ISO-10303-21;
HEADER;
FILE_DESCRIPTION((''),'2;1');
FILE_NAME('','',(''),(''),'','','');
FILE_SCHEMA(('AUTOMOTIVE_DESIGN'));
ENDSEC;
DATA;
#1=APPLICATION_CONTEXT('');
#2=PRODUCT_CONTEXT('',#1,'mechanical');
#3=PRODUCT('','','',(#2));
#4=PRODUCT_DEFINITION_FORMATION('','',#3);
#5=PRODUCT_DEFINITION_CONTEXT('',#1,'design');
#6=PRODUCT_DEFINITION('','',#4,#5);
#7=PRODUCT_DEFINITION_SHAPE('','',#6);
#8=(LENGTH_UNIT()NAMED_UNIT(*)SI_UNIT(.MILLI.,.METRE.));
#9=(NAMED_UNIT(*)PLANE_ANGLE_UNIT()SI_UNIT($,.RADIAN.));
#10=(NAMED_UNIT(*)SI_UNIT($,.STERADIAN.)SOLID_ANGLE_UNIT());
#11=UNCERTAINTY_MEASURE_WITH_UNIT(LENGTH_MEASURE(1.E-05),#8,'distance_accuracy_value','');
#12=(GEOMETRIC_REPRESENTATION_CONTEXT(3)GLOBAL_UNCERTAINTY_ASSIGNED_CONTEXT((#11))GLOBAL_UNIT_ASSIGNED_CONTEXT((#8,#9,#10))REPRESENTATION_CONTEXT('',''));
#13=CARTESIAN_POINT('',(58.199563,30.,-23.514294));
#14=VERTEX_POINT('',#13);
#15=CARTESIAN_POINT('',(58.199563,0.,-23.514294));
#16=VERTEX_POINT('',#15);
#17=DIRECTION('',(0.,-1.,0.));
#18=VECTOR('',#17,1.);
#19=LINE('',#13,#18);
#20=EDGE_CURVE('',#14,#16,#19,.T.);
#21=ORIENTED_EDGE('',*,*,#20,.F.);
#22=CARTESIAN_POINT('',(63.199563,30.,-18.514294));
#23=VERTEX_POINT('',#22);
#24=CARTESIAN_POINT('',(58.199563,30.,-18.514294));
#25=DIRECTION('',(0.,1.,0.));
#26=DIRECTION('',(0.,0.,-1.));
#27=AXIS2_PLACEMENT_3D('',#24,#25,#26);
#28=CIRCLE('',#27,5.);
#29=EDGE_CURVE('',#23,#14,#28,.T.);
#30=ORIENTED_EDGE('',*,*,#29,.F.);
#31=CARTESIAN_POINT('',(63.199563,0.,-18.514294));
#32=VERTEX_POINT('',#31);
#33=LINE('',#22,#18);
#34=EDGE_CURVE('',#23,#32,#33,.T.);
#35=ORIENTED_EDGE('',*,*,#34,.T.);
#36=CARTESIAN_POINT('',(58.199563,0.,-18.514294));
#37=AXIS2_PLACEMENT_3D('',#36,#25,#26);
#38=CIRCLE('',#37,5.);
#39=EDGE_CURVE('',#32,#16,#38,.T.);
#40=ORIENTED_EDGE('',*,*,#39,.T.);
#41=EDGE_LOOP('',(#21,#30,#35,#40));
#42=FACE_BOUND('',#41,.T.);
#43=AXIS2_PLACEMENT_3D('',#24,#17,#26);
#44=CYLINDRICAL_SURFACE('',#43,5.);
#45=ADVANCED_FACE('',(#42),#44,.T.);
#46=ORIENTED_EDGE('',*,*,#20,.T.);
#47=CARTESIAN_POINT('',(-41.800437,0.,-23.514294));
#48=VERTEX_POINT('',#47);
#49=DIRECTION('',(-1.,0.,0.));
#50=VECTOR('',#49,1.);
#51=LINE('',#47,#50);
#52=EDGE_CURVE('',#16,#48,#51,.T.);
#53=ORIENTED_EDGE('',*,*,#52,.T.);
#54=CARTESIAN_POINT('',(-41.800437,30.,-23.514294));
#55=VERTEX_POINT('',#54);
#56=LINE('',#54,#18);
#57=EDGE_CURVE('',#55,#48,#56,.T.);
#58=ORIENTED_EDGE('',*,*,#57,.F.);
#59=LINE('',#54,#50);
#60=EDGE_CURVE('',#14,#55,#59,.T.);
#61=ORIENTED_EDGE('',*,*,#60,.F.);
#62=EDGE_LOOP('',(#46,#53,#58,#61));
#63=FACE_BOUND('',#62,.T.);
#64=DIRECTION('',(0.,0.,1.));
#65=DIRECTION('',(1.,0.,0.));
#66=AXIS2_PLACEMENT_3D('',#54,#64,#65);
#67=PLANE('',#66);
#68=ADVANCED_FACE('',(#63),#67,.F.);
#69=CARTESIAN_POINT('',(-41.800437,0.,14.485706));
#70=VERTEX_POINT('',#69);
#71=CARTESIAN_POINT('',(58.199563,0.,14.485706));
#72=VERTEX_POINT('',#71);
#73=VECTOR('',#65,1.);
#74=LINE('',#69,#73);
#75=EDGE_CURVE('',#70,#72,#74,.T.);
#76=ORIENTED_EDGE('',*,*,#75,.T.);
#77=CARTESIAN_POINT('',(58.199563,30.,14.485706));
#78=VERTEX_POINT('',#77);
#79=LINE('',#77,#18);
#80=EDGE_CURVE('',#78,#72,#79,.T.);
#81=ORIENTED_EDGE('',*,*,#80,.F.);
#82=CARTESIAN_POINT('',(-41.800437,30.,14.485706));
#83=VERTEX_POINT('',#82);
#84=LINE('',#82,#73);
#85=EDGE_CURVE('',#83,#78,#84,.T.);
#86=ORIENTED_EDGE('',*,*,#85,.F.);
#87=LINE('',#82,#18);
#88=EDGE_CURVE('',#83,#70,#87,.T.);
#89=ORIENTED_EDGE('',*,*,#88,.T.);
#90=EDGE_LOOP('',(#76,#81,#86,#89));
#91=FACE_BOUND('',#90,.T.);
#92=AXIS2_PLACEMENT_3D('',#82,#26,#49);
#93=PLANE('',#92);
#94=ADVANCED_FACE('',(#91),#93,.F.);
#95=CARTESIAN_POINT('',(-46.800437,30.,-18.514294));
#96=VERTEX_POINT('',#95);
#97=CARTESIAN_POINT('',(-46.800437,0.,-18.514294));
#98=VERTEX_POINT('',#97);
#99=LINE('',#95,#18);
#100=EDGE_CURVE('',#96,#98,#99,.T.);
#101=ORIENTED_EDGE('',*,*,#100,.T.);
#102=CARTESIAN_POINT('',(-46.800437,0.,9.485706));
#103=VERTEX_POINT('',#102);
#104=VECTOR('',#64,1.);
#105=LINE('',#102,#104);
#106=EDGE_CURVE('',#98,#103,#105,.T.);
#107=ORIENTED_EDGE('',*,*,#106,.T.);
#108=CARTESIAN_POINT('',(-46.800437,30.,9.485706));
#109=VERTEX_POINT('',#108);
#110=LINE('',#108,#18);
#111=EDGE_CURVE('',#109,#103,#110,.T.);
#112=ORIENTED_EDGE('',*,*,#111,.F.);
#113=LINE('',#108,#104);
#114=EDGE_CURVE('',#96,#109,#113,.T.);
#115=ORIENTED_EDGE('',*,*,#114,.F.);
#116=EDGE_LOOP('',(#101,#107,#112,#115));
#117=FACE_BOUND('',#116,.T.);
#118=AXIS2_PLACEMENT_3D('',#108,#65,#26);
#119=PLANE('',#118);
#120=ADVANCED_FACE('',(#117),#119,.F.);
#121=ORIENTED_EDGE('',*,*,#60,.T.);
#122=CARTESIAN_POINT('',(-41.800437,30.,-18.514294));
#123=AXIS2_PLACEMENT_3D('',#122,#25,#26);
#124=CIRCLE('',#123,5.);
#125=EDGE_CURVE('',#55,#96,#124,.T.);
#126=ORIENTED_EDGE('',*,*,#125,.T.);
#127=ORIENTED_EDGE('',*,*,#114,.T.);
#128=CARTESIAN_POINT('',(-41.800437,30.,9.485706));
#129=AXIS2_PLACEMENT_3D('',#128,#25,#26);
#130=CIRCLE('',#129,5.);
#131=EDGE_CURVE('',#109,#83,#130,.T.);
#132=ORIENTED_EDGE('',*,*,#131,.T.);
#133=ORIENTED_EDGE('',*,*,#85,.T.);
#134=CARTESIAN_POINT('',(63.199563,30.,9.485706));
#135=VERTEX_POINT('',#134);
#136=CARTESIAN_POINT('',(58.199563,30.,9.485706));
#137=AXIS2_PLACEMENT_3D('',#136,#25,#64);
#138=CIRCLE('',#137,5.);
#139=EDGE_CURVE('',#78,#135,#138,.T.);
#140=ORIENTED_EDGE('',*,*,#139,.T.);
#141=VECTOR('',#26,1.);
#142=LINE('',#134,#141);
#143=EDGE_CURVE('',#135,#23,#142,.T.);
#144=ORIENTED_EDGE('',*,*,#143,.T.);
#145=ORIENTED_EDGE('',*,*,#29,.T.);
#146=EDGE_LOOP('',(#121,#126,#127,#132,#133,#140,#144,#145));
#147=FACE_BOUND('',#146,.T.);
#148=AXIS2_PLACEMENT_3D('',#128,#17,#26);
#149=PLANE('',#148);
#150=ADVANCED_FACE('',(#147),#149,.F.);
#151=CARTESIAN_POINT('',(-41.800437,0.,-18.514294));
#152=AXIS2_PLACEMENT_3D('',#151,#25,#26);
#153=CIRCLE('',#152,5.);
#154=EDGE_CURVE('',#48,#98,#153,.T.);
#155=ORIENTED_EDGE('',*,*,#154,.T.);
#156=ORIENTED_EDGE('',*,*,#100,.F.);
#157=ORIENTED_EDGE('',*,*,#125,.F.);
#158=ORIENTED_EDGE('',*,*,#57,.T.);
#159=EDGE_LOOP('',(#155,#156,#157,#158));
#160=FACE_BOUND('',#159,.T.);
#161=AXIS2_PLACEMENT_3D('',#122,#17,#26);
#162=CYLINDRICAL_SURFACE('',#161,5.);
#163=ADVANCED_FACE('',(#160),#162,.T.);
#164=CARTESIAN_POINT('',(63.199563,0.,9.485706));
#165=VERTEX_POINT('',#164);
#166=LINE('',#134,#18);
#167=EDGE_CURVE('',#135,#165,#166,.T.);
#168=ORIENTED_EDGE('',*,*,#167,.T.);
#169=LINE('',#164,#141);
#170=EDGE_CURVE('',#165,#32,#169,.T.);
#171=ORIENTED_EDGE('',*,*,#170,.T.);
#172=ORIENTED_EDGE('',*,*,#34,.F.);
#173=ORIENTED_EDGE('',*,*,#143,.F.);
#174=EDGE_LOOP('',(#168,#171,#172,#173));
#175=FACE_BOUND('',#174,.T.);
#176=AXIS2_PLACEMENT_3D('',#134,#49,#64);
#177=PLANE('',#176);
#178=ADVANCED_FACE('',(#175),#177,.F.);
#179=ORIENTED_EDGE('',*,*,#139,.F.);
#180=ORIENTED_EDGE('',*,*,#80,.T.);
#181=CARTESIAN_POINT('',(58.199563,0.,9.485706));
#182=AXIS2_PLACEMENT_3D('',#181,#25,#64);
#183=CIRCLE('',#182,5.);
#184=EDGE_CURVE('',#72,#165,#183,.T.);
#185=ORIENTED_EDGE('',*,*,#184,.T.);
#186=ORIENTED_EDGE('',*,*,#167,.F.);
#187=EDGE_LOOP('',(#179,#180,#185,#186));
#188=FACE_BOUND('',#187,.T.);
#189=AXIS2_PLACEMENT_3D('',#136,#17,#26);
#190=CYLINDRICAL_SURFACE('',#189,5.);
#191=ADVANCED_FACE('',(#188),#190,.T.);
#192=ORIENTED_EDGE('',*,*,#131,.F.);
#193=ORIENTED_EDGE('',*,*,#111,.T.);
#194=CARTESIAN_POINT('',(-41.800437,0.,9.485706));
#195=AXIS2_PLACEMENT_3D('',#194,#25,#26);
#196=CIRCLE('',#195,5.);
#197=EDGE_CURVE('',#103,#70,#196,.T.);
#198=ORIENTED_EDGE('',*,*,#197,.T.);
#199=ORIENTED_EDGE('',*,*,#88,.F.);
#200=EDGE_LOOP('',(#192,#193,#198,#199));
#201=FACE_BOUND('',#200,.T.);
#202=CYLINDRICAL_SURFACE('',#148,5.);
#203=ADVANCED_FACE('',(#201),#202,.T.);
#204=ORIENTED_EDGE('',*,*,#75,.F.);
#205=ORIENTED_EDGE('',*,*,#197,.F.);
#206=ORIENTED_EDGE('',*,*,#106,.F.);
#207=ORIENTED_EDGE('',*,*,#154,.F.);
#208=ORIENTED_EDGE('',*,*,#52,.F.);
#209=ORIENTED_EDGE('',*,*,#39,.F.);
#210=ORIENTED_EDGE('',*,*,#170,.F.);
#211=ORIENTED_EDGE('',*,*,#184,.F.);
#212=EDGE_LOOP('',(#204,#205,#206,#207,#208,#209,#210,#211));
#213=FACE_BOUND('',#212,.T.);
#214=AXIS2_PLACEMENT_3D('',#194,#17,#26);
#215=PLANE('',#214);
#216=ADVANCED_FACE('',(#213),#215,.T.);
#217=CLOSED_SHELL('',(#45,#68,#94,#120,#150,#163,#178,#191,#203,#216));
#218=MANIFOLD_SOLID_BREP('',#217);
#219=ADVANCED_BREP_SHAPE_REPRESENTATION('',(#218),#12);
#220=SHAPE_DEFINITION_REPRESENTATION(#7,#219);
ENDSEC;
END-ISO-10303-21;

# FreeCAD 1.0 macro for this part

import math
import FreeCAD as App
import Part
import Sketcher

doc = App.newDocument("Part")
body = doc.addObject("PartDesign::Body", "Body")

# Sketch on XZ plane
sketch1 = doc.addObject("Sketcher::SketchObject", "Sketch")
body.addObject(sketch1)
sketch1.AttachmentSupport = (doc.XZ_Plane, [""])
sketch1.MapMode = "FlatFace"
sketch1.addGeometry([
    Part.LineSegment(App.Vector(-42, 14, 0), App.Vector(58, 14, 0)),  # 0
    Part.ArcOfCircle(Part.Circle(App.Vector(58, 9, 0), App.Vector(0, 0, 1), 5), math.radians(0), math.radians(90)),  # 1
    Part.LineSegment(App.Vector(63, 9, 0), App.Vector(63, -19, 0)),  # 2
    Part.ArcOfCircle(Part.Circle(App.Vector(58, -19, 0), App.Vector(0, 0, 1), 5), math.radians(-90), math.radians(0)),  # 3
    Part.LineSegment(App.Vector(58, -24, 0), App.Vector(-42, -24, 0)),  # 4
    Part.ArcOfCircle(Part.Circle(App.Vector(-42, -19, 0), App.Vector(0, 0, 1), 5), math.radians(180), math.radians(270)),  # 5
    Part.LineSegment(App.Vector(-47, -19, 0), App.Vector(-47, 9, 0)),  # 6
    Part.ArcOfCircle(Part.Circle(App.Vector(-42, 9, 0), App.Vector(0, 0, 1), 5), math.radians(90), math.radians(180)),  # 7
], False)
sketch1.addConstraint([
    Sketcher.Constraint("Tangent", 0, 2, 1, 2),
    Sketcher.Constraint("Tangent", 1, 1, 2, 1),
    Sketcher.Constraint("Tangent", 2, 2, 3, 2),
    Sketcher.Constraint("Tangent", 3, 1, 4, 1),
    Sketcher.Constraint("Tangent", 4, 2, 5, 2),
    Sketcher.Constraint("Tangent", 5, 1, 6, 1),
    Sketcher.Constraint("Tangent", 6, 2, 7, 2),
    Sketcher.Constraint("Tangent", 7, 1, 0, 1),
    Sketcher.Constraint("Horizontal", 0),
    Sketcher.Constraint("Vertical", 2),
    Sketcher.Constraint("Horizontal", 4),
    Sketcher.Constraint("Vertical", 6),
    Sketcher.Constraint("Equal", 1, 3),
    Sketcher.Constraint("Equal", 3, 5),
    Sketcher.Constraint("Equal", 5, 7),
    Sketcher.Constraint("Radius", 1, 5.0),
    Sketcher.Constraint("DistanceX", 0, 1, 0, 2, 100.0),
    Sketcher.Constraint("DistanceY", 2, 2, 2, 1, 28.0),
    Sketcher.Constraint("DistanceX", -1, 1, 1, 3, 58.199563),
    Sketcher.Constraint("DistanceY", -1, 1, 1, 3, 9.485706),
])
pad1 = doc.addObject("PartDesign::Pad", "Pad")
body.addObject(pad1)
pad1.Profile = sketch1
pad1.Length = 30
pad1.Reversed = True

doc.recompute()
